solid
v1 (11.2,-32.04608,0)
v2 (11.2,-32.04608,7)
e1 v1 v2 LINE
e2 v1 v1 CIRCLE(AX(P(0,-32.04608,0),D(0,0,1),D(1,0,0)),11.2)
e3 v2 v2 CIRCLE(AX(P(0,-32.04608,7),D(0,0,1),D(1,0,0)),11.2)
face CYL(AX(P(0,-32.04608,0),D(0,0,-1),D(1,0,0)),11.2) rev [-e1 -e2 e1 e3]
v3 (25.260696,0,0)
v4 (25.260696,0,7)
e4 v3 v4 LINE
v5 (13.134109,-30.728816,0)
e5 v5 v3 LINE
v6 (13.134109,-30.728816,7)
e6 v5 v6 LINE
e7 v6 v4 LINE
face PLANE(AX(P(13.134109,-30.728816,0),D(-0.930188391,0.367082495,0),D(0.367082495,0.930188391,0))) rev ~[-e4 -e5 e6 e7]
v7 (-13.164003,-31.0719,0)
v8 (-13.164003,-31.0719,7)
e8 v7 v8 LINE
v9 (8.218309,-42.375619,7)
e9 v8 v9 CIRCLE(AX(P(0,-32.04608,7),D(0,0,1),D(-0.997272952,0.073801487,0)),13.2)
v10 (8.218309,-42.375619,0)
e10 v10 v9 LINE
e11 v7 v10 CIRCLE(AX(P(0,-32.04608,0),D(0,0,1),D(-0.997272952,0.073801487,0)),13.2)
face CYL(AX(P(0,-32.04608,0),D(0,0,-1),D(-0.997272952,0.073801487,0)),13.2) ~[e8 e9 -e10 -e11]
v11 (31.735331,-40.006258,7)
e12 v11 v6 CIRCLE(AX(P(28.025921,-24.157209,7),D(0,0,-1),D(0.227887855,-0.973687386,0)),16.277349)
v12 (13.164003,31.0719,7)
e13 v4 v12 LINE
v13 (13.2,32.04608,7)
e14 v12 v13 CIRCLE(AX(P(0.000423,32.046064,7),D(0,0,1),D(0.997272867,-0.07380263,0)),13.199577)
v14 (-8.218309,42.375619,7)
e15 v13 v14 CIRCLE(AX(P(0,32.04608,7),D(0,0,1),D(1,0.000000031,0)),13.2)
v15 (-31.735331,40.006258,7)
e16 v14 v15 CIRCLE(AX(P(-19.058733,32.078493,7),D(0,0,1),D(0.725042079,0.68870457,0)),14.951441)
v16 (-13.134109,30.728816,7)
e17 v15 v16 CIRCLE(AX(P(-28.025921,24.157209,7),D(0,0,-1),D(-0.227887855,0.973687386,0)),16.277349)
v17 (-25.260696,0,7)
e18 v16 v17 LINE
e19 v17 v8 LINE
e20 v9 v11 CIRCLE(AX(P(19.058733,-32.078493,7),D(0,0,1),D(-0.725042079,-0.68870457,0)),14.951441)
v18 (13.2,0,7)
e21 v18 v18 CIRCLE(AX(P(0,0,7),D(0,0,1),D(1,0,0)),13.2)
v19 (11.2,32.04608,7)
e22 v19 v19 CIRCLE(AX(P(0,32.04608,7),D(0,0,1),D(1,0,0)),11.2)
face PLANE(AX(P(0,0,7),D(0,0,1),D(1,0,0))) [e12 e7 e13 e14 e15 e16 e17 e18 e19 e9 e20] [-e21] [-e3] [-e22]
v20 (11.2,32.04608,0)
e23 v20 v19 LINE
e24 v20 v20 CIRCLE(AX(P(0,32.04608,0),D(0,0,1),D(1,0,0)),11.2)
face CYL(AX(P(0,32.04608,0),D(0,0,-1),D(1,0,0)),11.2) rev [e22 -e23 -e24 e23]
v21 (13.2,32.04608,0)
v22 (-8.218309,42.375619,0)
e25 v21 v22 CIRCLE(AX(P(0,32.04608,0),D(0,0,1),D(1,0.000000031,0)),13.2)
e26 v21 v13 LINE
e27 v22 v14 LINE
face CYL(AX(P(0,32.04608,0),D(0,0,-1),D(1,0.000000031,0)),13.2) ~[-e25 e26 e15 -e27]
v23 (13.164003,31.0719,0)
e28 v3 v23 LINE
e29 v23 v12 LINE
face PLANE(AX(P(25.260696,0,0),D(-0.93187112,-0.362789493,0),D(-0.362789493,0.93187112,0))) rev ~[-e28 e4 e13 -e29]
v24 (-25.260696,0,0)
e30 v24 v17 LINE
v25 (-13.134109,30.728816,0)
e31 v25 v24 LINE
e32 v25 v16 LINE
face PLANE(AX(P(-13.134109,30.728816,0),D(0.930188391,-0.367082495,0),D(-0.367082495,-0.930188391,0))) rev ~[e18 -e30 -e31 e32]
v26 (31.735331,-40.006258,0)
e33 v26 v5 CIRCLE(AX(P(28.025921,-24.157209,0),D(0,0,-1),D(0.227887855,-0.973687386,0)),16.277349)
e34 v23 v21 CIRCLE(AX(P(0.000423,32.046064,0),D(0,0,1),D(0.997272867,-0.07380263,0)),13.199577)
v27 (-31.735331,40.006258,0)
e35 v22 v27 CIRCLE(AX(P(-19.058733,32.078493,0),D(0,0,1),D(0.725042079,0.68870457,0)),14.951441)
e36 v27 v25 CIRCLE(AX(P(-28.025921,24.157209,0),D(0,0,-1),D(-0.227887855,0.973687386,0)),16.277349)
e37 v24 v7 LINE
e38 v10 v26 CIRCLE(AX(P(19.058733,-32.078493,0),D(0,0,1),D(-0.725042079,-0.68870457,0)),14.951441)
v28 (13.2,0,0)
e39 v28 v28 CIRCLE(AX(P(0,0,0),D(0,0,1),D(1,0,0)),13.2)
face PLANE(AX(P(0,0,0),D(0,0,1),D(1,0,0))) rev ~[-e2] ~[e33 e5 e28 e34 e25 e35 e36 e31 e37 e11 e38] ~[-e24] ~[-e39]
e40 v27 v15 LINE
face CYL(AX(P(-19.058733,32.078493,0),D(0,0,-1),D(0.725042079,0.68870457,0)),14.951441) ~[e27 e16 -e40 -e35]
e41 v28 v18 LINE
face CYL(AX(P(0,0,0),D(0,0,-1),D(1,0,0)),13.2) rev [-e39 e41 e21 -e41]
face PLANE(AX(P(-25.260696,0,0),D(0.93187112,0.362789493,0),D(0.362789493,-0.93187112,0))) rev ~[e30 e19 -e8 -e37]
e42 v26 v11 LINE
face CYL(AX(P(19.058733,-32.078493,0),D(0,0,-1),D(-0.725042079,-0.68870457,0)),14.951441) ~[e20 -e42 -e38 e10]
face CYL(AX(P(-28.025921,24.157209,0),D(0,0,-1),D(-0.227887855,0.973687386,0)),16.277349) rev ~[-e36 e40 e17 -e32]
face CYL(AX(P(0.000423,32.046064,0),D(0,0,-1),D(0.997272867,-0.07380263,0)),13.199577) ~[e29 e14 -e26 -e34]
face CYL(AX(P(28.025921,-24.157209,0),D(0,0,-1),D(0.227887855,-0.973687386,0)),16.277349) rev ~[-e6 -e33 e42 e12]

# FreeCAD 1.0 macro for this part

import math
import FreeCAD as App
import Part
import Sketcher
from FreeCAD import Vector
Q = App.Units.Quantity

doc = App.newDocument("Part")
body = doc.addObject("PartDesign::Body", "Body")

# Sketch on XY plane
sketch1 = body.newObject("Sketcher::SketchObject", "Sketch")
sketch1.AttachmentSupport = (doc.getObject("XY_Plane"), [""])
sketch1.MapMode = "FlatFace"
sketch1.addGeometry([
    Part.LineSegment(Vector(25.260696, 0, 0), Vector(13.164003, 31.0719, 0)),  # 0
    Part.ArcOfCircle(Part.Circle(Vector(0.000423, 32.046064, 0), Vector(0, 0, 1), 13.199577), math.radians(-4.232427), math.radians(0.000071)),  # 1
    Part.ArcOfCircle(Part.Circle(Vector(0, 32.04608, 0), Vector(0, 0, 1), 13.2), math.radians(0.000002), math.radians(128.506192)),  # 2
    Part.ArcOfCircle(Part.Circle(Vector(-19.058733, 32.078493, 0), Vector(0, 0, 1), 14.951441), math.radians(43.527652), math.radians(147.978723)),  # 3
    Part.ArcOfCircle(Part.Circle(Vector(-28.025921, 24.157209, 0), Vector(0, 0, 1), 16.277349), math.radians(23.811387), math.radians(103.172753)),  # 4
    Part.LineSegment(Vector(-13.134109, 30.728816, 0), Vector(-25.260696, 0, 0)),  # 5
    Part.LineSegment(Vector(-25.260696, 0, 0), Vector(-13.164003, -31.0719, 0)),  # 6
    Part.ArcOfCircle(Part.Circle(Vector(0, -32.04608, 0), Vector(0, 0, 1), 13.2), math.radians(175.767638), math.radians(308.506192)),  # 7
    Part.ArcOfCircle(Part.Circle(Vector(19.058733, -32.078493, 0), Vector(0, 0, 1), 14.951441), math.radians(-136.472348), math.radians(-32.021277)),  # 8
    Part.ArcOfCircle(Part.Circle(Vector(28.025921, -24.157209, 0), Vector(0, 0, 1), 16.277349), math.radians(-156.188613), math.radians(-76.827247)),  # 9
    Part.LineSegment(Vector(13.134109, -30.728816, 0), Vector(25.260696, 0, 0)),  # 10
    Part.Circle(Vector(0, -32.04608, 0), Vector(0, 0, 1), 11.2),  # 11
    Part.Circle(Vector(0, 0, 0), Vector(0, 0, 1), 13.2),  # 12
    Part.Circle(Vector(0, 32.04608, 0), Vector(0, 0, 1), 11.2),  # 13
], False)
sketch1.addConstraint([
    Sketcher.Constraint("Coincident", 0, 2, 1, 1),
    Sketcher.Constraint("Coincident", 1, 2, 2, 1),
    Sketcher.Constraint("Coincident", 2, 2, 3, 1),
    Sketcher.Constraint("Coincident", 3, 2, 4, 2),
    Sketcher.Constraint("Coincident", 4, 1, 5, 1),
    Sketcher.Constraint("Coincident", 5, 2, 6, 1),
    Sketcher.Constraint("Coincident", 6, 2, 7, 1),
    Sketcher.Constraint("Coincident", 7, 2, 8, 1),
    Sketcher.Constraint("Coincident", 8, 2, 9, 2),
    Sketcher.Constraint("Coincident", 9, 1, 10, 1),
    Sketcher.Constraint("Coincident", 10, 2, 0, 1),
    Sketcher.Constraint("Coincident", 12, 3, -1, 1),
    Sketcher.Constraint("Coincident", 11, 3, 7, 3),
    Sketcher.Constraint("Coincident", 13, 3, 2, 3),
    Sketcher.Constraint("PointOnObject", 2, 3, -2),
    Sketcher.Constraint("PointOnObject", 7, 3, -2),
    Sketcher.Constraint("PointOnObject", 5, 2, -1),
    Sketcher.Constraint("PointOnObject", 10, 2, -1),
    Sketcher.Constraint("Diameter", 11, Q("22.4 mm")),
    Sketcher.Constraint("Diameter", 12, Q("26.4 mm")),
    Sketcher.Constraint("Diameter", 13, Q("22.4 mm")),
    Sketcher.Constraint("Radius", 2, Q("13.2 mm")),
    Sketcher.Constraint("Radius", 7, Q("13.2 mm")),
    Sketcher.Constraint("Radius", 3, Q("14.951441 mm")),
    Sketcher.Constraint("Radius", 4, Q("16.277349 mm")),
    Sketcher.Constraint("Radius", 8, Q("14.951441 mm")),
    Sketcher.Constraint("Radius", 9, Q("16.277349 mm")),
    Sketcher.Constraint("Radius", 1, Q("13.199577 mm")),
    Sketcher.Constraint("DistanceY", -1, 1, 0, 2, Q("31.0719 mm")),
    Sketcher.Constraint("DistanceY", 6, 2, -1, 1, Q("31.0719 mm")),
    Sketcher.Constraint("DistanceY", 8, 3, 4, 3, Q("56.235702 mm")),
    Sketcher.Constraint("DistanceX", 1, 3, 9, 3, Q("28.025498 mm")),
    Sketcher.Constraint("DistanceY", 9, 3, 3, 3, Q("56.235702 mm")),
    Sketcher.Constraint("DistanceX", 3, 2, 3, 3, Q("12.676598 mm")),
    Sketcher.Constraint("DistanceX", 4, 1, 2, 2, Q("4.9158 mm")),
    Sketcher.Constraint("DistanceX", 8, 3, 8, 2, Q("12.676598 mm")),
    Sketcher.Constraint("DistanceX", 7, 2, 9, 1, Q("4.9158 mm")),
    Sketcher.Constraint("Distance", 0, Q("33.343559 mm")),
    Sketcher.Constraint("Distance", 6, Q("33.343559 mm")),
    Sketcher.Constraint("DistanceY", -1, 1, 2, 3, Q("32.04608 mm")),
    Sketcher.Constraint("DistanceX", 4, 3, -1, 1, Q("28.025921 mm")),
    Sketcher.Constraint("DistanceY", -1, 1, 4, 3, Q("24.157209 mm")),
    Sketcher.Constraint("DistanceY", 7, 3, -1, 1, Q("32.04608 mm")),
    Sketcher.Constraint("DistanceY", 9, 3, -1, 1, Q("24.157209 mm")),
    Sketcher.Constraint("DistanceY", -1, 1, 1, 2, Q("32.04608 mm")),
    Sketcher.Constraint("DistanceY", 1, 3, 3, 3, Q("0.03243 mm")),
])
pad1 = body.newObject("PartDesign::Pad", "Pad")
pad1.Profile = sketch1
pad1.Length = 7

doc.recompute()
